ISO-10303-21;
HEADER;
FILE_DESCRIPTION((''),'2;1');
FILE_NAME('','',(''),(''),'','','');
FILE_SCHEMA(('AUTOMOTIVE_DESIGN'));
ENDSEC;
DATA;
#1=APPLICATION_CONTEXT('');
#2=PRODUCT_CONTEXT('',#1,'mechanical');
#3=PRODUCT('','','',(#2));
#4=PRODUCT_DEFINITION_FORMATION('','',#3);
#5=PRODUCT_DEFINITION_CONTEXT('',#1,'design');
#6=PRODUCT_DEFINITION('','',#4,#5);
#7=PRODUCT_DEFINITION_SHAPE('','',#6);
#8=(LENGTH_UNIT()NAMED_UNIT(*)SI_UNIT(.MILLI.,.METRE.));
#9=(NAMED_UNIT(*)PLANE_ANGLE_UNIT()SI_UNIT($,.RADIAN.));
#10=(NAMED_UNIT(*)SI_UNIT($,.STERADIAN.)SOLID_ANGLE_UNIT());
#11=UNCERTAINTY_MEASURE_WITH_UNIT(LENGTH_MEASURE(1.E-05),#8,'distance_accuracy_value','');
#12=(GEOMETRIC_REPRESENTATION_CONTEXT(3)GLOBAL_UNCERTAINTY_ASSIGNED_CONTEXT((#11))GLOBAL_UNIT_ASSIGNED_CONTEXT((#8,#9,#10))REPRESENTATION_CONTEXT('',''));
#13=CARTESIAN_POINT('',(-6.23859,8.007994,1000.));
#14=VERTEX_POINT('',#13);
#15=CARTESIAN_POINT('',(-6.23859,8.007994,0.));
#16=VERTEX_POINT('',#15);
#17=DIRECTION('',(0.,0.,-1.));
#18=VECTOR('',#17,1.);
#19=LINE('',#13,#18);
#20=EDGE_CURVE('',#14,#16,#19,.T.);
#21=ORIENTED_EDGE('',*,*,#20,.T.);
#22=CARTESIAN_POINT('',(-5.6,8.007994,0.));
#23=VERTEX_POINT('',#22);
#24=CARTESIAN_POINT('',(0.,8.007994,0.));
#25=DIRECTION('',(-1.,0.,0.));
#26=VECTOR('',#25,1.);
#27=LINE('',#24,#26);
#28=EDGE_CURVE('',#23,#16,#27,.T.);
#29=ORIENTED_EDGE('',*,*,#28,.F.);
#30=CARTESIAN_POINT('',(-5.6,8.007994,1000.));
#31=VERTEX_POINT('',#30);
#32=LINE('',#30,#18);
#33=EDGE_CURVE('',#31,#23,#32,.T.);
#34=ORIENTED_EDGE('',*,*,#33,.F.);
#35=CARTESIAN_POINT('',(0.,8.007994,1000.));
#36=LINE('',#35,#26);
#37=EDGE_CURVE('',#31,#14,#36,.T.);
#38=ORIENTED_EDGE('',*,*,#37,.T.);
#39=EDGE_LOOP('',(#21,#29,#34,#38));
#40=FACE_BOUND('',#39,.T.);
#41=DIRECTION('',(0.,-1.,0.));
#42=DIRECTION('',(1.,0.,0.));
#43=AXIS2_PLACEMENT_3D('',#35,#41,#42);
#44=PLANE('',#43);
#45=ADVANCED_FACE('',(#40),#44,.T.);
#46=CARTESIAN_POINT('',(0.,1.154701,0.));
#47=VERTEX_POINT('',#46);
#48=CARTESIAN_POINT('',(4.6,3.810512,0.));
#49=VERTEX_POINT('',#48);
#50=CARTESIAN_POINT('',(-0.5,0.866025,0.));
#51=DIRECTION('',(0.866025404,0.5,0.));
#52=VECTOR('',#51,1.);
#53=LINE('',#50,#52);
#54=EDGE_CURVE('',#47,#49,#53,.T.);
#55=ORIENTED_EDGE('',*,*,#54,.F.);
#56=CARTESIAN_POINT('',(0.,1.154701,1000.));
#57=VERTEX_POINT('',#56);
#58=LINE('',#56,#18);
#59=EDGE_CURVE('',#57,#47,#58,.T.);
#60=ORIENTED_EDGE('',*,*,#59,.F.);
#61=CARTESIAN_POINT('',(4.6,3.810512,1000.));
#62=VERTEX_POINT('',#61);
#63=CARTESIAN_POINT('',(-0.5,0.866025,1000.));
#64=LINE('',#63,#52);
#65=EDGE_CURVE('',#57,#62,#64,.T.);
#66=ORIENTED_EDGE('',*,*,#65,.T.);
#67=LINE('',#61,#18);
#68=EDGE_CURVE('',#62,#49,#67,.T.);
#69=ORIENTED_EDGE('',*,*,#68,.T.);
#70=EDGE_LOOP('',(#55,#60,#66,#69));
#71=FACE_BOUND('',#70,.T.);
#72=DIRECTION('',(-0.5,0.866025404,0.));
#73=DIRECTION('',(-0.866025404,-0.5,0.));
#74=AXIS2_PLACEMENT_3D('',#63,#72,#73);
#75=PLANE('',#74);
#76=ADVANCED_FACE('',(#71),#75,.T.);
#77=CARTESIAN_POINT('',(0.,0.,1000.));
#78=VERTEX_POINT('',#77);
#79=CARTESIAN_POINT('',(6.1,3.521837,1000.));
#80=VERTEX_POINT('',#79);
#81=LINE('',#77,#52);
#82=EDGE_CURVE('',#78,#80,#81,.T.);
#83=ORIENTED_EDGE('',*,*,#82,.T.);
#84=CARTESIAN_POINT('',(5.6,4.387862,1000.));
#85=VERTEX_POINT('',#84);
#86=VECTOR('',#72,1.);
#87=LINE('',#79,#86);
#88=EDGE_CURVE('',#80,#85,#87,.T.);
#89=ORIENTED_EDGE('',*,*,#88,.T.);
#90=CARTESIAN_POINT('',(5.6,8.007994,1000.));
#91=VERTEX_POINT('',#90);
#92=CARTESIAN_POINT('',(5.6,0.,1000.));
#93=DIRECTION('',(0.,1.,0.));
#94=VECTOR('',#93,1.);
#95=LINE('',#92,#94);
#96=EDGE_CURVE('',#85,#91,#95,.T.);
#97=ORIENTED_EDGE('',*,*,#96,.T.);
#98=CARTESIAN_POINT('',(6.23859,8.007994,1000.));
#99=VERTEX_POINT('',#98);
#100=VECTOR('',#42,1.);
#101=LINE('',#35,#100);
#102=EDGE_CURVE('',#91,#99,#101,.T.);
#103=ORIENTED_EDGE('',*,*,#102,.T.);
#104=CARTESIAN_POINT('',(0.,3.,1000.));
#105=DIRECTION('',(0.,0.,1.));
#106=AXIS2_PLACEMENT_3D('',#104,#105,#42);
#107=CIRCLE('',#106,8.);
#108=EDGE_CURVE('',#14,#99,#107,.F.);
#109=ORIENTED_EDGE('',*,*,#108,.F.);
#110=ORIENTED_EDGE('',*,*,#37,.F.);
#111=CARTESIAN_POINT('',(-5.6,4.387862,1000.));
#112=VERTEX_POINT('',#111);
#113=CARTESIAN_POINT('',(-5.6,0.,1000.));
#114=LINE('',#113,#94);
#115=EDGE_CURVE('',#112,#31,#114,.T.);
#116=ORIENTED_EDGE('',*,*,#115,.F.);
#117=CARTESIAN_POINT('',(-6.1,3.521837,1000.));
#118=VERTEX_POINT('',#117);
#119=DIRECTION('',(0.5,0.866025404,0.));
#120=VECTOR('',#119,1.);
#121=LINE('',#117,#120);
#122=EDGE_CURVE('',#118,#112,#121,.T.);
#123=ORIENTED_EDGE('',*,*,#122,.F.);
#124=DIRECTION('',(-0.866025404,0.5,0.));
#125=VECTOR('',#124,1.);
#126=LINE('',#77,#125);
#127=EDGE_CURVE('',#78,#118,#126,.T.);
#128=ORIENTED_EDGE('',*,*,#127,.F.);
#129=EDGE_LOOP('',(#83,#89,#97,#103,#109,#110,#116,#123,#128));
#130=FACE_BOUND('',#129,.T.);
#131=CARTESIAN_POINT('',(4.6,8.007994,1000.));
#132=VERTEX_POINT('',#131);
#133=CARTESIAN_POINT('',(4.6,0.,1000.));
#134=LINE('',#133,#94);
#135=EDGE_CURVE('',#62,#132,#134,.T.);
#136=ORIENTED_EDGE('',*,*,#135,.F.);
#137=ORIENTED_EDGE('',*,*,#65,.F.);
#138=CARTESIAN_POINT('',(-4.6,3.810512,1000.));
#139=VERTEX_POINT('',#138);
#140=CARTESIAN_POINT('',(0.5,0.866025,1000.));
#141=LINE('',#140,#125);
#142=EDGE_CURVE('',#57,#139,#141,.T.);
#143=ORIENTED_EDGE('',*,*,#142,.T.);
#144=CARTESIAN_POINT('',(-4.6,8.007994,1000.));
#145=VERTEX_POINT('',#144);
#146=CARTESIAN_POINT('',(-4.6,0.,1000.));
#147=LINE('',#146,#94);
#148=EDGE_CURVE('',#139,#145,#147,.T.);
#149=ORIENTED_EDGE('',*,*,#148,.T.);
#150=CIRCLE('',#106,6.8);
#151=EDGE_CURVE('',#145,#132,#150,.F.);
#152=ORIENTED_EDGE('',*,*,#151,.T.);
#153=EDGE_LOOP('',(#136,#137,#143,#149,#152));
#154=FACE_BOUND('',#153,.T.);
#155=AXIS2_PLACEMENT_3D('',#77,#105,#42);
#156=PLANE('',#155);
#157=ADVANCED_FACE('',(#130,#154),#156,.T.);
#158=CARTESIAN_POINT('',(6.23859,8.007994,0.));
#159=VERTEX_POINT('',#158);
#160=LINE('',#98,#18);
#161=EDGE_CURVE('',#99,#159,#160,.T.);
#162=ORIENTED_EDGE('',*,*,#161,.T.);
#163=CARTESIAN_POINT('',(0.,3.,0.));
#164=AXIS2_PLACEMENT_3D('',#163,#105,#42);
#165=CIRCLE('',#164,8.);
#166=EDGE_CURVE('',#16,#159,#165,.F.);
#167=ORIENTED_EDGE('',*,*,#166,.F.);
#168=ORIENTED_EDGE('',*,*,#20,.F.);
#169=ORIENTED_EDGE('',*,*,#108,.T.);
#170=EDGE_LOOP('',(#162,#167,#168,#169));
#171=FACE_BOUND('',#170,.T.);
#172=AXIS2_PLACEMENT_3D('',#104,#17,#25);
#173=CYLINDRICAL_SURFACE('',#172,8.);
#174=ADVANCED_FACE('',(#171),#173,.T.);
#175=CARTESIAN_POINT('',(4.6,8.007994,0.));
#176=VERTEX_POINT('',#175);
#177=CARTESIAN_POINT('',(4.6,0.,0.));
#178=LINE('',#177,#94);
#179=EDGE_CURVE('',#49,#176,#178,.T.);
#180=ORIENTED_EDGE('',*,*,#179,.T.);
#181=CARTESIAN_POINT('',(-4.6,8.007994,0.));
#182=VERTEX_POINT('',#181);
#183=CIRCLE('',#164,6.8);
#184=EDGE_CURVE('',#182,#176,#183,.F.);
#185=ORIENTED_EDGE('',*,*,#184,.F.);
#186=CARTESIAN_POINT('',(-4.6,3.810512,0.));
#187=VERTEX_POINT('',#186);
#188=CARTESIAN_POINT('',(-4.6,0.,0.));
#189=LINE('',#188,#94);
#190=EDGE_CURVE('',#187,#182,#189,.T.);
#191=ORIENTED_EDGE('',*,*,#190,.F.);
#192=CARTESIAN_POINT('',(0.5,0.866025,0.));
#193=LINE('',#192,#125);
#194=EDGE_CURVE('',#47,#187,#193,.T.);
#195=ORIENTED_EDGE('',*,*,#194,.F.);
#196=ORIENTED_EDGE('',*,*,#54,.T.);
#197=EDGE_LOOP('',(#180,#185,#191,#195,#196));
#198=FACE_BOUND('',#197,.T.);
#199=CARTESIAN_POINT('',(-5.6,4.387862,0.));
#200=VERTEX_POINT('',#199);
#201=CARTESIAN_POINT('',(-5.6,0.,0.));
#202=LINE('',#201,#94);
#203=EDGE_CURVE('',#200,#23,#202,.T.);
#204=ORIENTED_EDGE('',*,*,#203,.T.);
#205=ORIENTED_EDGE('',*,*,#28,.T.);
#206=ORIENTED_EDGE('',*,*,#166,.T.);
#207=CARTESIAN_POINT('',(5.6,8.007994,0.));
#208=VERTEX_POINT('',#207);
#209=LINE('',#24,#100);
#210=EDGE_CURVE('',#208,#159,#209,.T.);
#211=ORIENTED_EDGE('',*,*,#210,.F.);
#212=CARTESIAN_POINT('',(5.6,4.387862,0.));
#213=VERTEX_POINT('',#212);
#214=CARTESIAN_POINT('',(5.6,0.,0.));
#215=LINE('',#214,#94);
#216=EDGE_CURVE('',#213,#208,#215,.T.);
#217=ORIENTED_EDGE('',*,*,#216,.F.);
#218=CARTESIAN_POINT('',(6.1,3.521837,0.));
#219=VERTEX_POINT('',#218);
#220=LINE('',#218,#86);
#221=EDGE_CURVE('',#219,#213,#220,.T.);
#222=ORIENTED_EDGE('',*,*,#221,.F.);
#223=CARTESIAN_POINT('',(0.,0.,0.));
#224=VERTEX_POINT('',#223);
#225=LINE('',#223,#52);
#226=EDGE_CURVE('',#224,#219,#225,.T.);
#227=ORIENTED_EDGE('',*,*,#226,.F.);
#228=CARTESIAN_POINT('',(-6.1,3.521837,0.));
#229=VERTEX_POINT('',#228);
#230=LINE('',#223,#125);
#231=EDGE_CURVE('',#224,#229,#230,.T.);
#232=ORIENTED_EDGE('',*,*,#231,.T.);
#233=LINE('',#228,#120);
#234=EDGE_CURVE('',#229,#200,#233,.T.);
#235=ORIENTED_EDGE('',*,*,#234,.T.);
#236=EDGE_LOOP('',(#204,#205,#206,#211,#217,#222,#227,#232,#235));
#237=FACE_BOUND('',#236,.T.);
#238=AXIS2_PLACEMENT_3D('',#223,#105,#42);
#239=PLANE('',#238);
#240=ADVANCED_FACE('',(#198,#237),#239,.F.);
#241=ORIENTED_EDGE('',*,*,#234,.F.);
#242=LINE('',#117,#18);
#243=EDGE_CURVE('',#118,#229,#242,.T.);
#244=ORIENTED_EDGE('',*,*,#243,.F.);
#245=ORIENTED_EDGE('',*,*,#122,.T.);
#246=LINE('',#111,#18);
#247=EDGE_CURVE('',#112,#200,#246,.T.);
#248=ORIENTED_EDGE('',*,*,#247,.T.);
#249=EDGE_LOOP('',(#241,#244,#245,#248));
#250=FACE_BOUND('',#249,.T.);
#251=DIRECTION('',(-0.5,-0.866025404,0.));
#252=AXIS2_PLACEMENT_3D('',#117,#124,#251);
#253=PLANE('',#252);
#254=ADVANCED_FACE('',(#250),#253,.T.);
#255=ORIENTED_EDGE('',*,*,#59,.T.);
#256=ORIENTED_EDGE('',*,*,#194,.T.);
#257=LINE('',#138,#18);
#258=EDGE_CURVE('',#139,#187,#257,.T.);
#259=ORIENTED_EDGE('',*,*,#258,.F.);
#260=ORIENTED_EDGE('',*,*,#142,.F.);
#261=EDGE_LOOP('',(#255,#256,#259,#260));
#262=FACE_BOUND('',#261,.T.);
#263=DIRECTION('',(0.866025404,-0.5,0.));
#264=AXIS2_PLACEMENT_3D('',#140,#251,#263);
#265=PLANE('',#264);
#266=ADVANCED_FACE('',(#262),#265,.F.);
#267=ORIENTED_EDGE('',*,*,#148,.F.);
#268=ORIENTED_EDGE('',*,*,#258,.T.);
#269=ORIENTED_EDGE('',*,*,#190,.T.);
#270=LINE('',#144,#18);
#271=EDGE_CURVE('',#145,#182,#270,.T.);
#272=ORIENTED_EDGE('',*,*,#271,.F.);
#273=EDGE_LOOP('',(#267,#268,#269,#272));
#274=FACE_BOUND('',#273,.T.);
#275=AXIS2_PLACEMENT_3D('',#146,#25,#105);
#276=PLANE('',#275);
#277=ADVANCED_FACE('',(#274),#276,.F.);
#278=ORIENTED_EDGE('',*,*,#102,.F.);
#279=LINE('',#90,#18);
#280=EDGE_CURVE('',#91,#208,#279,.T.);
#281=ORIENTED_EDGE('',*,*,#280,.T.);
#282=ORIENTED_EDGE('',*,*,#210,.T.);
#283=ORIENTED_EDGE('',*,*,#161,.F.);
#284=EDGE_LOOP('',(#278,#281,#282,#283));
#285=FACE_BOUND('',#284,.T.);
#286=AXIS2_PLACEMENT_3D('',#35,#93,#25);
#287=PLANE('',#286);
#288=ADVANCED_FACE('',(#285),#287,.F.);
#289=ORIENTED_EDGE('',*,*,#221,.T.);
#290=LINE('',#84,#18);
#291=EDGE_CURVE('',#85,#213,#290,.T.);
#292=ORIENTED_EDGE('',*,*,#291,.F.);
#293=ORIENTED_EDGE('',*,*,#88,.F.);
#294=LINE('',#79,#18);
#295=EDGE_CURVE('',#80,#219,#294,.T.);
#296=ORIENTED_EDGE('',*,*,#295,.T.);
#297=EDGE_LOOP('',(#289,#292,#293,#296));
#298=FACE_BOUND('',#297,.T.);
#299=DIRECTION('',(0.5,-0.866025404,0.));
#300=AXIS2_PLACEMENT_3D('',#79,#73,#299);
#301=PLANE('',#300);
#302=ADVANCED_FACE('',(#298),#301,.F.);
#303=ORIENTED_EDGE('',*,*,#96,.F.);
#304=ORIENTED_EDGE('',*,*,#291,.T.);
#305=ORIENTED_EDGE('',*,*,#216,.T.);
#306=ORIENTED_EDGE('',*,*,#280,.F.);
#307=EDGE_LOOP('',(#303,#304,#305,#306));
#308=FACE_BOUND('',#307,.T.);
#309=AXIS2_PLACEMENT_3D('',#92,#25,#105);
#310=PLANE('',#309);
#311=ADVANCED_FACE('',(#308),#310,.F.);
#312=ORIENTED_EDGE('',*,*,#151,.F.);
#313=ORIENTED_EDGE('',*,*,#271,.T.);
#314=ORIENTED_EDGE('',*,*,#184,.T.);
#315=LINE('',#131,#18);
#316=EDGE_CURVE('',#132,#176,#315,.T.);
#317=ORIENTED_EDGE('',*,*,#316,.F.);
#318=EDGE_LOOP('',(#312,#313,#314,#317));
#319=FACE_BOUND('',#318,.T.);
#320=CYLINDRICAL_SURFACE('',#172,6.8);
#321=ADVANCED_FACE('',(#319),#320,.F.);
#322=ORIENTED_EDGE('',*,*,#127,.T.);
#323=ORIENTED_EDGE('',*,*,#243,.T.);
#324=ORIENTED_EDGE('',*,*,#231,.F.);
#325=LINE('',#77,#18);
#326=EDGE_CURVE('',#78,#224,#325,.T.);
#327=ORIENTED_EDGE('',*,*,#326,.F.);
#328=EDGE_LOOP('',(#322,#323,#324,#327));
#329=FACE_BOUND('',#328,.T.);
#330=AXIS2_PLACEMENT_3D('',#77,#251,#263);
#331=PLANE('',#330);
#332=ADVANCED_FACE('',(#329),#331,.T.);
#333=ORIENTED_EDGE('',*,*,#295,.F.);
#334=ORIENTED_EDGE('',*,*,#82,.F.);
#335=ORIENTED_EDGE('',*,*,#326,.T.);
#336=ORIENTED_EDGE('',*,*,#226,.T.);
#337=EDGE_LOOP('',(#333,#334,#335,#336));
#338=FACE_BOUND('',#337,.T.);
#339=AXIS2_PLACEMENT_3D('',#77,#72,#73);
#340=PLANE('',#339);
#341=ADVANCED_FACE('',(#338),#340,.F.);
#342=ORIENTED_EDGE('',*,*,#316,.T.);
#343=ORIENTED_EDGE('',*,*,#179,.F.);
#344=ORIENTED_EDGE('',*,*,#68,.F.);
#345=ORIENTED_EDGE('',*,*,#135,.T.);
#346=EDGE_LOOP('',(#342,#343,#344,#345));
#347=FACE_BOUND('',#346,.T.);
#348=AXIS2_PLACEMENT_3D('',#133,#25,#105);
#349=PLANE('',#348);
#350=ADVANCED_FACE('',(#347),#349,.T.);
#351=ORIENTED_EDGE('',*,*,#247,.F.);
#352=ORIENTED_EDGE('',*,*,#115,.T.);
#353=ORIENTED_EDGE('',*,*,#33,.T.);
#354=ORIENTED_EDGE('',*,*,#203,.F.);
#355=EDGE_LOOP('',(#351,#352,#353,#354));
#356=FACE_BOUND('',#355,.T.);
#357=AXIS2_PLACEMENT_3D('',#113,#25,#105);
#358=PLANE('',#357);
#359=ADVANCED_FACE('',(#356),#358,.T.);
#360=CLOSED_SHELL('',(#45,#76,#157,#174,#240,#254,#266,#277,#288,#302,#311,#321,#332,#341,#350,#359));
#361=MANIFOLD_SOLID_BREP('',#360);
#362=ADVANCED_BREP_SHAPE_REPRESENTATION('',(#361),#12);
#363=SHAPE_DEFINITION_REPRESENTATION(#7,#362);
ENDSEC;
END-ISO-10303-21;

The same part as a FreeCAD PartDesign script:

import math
import FreeCAD as App
import Part
import Sketcher

V = App.Vector
Q = App.Units.Quantity

doc = App.newDocument("Part")
body = doc.addObject("PartDesign::Body", "Body")

# Sketch on XY plane
sketch1 = body.newObject("Sketcher::SketchObject", "Sketch")
sketch1.AttachmentSupport = (doc.getObject("XY_Plane"), [""])
sketch1.MapMode = "FlatFace"
sketch1.addGeometry([
    Part.LineSegment(V(-6.1, 3.5, 0), V(0, 0, 0)),  # 0
    Part.LineSegment(V(0, 0, 0), V(6.1, 3.5, 0)),  # 1
    Part.LineSegment(V(6.1, 3.5, 0), V(5.6, 4.4, 0)),  # 2
    Part.LineSegment(V(5.6, 4.4, 0), V(5.6, 8, 0)),  # 3
    Part.LineSegment(V(5.6, 8, 0), V(6.2, 8, 0)),  # 4
    Part.ArcOfCircle(Part.Circle(V(0, 3, 0), V(0, 0, 1), 8), math.radians(39), math.radians(141)),  # 5
    Part.LineSegment(V(-6.2, 8, 0), V(-5.6, 8, 0)),  # 6
    Part.LineSegment(V(-5.6, 8, 0), V(-5.6, 4.4, 0)),  # 7
    Part.LineSegment(V(-5.6, 4.4, 0), V(-6.1, 3.5, 0)),  # 8
    Part.LineSegment(V(0, 1.2, 0), V(-4.6, 3.8, 0)),  # 9
    Part.LineSegment(V(-4.6, 3.8, 0), V(-4.6, 8, 0)),  # 10
    Part.ArcOfCircle(Part.Circle(V(0, 3, 0), V(0, 0, 1), 6.8), math.radians(47), math.radians(133)),  # 11
    Part.LineSegment(V(4.6, 8, 0), V(4.6, 3.8, 0)),  # 12
    Part.LineSegment(V(4.6, 3.8, 0), V(0, 1.2, 0)),  # 13
], False)
sketch1.addConstraint([
    Sketcher.Constraint("Coincident", 0, 2, 1, 1),
    Sketcher.Constraint("Coincident", 1, 2, 2, 1),
    Sketcher.Constraint("Coincident", 2, 2, 3, 1),
    Sketcher.Constraint("Coincident", 3, 2, 4, 1),
    Sketcher.Constraint("Coincident", 4, 2, 5, 1),
    Sketcher.Constraint("Coincident", 5, 2, 6, 1),
    Sketcher.Constraint("Coincident", 6, 2, 7, 1),
    Sketcher.Constraint("Coincident", 7, 2, 8, 1),
    Sketcher.Constraint("Coincident", 8, 2, 0, 1),
    Sketcher.Constraint("Coincident", 9, 2, 10, 1),
    Sketcher.Constraint("Coincident", 10, 2, 11, 2),
    Sketcher.Constraint("Coincident", 11, 1, 12, 1),
    Sketcher.Constraint("Coincident", 12, 2, 13, 1),
    Sketcher.Constraint("Coincident", 13, 2, 9, 1),
    Sketcher.Constraint("Vertical", 3),
    Sketcher.Constraint("Horizontal", 4),
    Sketcher.Constraint("Horizontal", 6),
    Sketcher.Constraint("Vertical", 7),
    Sketcher.Constraint("Vertical", 10),
    Sketcher.Constraint("Vertical", 12),
    Sketcher.Constraint("Coincident", 0, 2, -1, 1),
    Sketcher.Constraint("Coincident", 11, 3, 5, 3),
    Sketcher.Constraint("Symmetric", 4, 2, 5, 2, -2),
    Sketcher.Constraint("Symmetric", 2, 2, 7, 2, -2),
    Sketcher.Constraint("Symmetric", 1, 2, 8, 2, -2),
    Sketcher.Constraint("Symmetric", 9, 2, 12, 2, -2),
    Sketcher.Constraint("PointOnObject", 13, 2, -2),
    Sketcher.Constraint("Perpendicular", 1, 2),
    Sketcher.Constraint("Perpendicular", 8, 9),
    Sketcher.Constraint("Horizontal", 6, 2, 10, 2),
    Sketcher.Constraint("Radius", 5, 8.0),
    Sketcher.Constraint("Radius", 11, 6.8),
    Sketcher.Constraint("Angle", 0, Q("-30 deg")),
    Sketcher.Constraint("Distance", 2, 1.0),
    Sketcher.Constraint("DistanceY", -1, 1, 5, 3, 3.0),
    Sketcher.Constraint("DistanceX", 7, 2, 9, 2, 1.0),
    Sketcher.Constraint("DistanceX", -1, 1, 1, 2, 6.1),
    Sketcher.Constraint("DistanceY", 10, 1, 10, 2, 4.197482),
])
pad1 = body.newObject("PartDesign::Pad", "Pad")
pad1.Profile = sketch1
pad1.Length = 1000

doc.recompute()
